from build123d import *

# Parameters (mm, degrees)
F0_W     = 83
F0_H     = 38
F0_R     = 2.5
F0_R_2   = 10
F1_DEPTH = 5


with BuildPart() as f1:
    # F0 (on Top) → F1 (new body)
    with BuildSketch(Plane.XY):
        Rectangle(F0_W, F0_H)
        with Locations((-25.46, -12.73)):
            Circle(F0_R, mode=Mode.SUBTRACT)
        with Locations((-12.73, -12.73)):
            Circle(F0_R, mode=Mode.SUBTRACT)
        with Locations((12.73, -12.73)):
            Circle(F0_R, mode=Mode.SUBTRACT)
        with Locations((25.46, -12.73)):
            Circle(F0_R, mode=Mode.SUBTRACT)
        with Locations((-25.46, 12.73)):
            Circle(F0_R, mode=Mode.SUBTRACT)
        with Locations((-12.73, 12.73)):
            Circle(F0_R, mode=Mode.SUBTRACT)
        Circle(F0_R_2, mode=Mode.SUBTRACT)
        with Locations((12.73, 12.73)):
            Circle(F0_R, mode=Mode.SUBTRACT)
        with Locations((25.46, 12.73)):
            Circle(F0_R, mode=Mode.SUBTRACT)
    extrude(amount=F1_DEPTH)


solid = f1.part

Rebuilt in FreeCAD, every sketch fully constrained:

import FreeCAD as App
import Part
import Sketcher
from FreeCAD import Vector
Q = App.Units.Quantity


def add_polygon(sketch, points):
    """Adds a closed chain of lines whose ends are joined by coincident constraints."""
    first, n = sketch.GeometryCount, len(points)
    for a, b in zip(points, points[1:] + points[:1]):
        sketch.addGeometry(Part.LineSegment(App.Vector(*a, 0), App.Vector(*b, 0)), False)
    for i in range(n):
        sketch.addConstraint(Sketcher.Constraint("Coincident", first + i, 2, first + (i + 1) % n, 1))

doc = App.newDocument("Part")
body = doc.addObject("PartDesign::Body", "Body")

sketch1 = doc.addObject("Sketcher::SketchObject", "Sketch")
body.addObject(sketch1)
sketch1.AttachmentSupport = (doc.XY_Plane, [""])
sketch1.MapMode = "FlatFace"
add_polygon(sketch1, [(-41.5, 19), (-41.5, -19), (41.5, -19), (41.5, 19)])
sketch1.addGeometry(Part.Circle(Vector(-25.5, -12.7, 0), Vector(0, 0, 1), 2.5), False)
sketch1.addGeometry(Part.Circle(Vector(-12.7, -12.7, 0), Vector(0, 0, 1), 2.5), False)
sketch1.addGeometry(Part.Circle(Vector(0, 0, 0), Vector(0, 0, 1), 10), False)
sketch1.addGeometry(Part.Circle(Vector(12.7, -12.7, 0), Vector(0, 0, 1), 2.5), False)
sketch1.addGeometry(Part.Circle(Vector(25.5, -12.7, 0), Vector(0, 0, 1), 2.5), False)
sketch1.addGeometry(Part.Circle(Vector(-25.5, 12.7, 0), Vector(0, 0, 1), 2.5), False)
sketch1.addGeometry(Part.Circle(Vector(-12.7, 12.7, 0), Vector(0, 0, 1), 2.5), False)
sketch1.addGeometry(Part.Circle(Vector(12.7, 12.7, 0), Vector(0, 0, 1), 2.5), False)
sketch1.addGeometry(Part.Circle(Vector(25.5, 12.7, 0), Vector(0, 0, 1), 2.5), False)
sketch1.addConstraint(Sketcher.Constraint("Vertical", 0))
sketch1.addConstraint(Sketcher.Constraint("Horizontal", 1))
sketch1.addConstraint(Sketcher.Constraint("Vertical", 2))
sketch1.addConstraint(Sketcher.Constraint("Horizontal", 3))
sketch1.addConstraint(Sketcher.Constraint("Coincident", 6, 3, -1, 1))
sketch1.addConstraint(Sketcher.Constraint("Equal", 4, 5))
sketch1.addConstraint(Sketcher.Constraint("Equal", 5, 7))
sketch1.addConstraint(Sketcher.Constraint("Equal", 7, 8))
sketch1.addConstraint(Sketcher.Constraint("Equal", 8, 9))
sketch1.addConstraint(Sketcher.Constraint("Equal", 9, 10))
sketch1.addConstraint(Sketcher.Constraint("Equal", 10, 11))
sketch1.addConstraint(Sketcher.Constraint("Equal", 11, 12))
sketch1.addConstraint(Sketcher.Constraint("Symmetric", 8, 3, 9, 3, -1, 1))
sketch1.addConstraint(Sketcher.Constraint("Symmetric", 7, 3, 10, 3, -1, 1))
sketch1.addConstraint(Sketcher.Constraint("Symmetric", 5, 3, 11, 3, -1, 1))
sketch1.addConstraint(Sketcher.Constraint("Symmetric", 4, 3, 12, 3, -1, 1))
sketch1.addConstraint(Sketcher.Constraint("Symmetric", 0, 2, 2, 2, -1, 1))
sketch1.addConstraint(Sketcher.Constraint("Symmetric", 5, 3, 7, 3, -2))
sketch1.addConstraint(Sketcher.Constraint("Symmetric", 4, 3, 8, 3, -2))
sketch1.addConstraint(Sketcher.Constraint("Horizontal", 4, 3, 5, 3))
sketch1.addConstraint(Sketcher.Constraint("Diameter", 4, Q("5 mm")))
sketch1.addConstraint(Sketcher.Constraint("Diameter", 6, Q("20 mm")))
sketch1.addConstraint(Sketcher.Constraint("DistanceX", 1, 1, 1, 2, Q("83 mm")))
sketch1.addConstraint(Sketcher.Constraint("DistanceY", 0, 2, 0, 1, Q("38 mm")))
sketch1.addConstraint(Sketcher.Constraint("DistanceX", 4, 3, -1, 1, Q("25.46 mm")))
sketch1.addConstraint(Sketcher.Constraint("DistanceY", 4, 3, -1, 1, Q("12.73 mm")))
sketch1.addConstraint(Sketcher.Constraint("DistanceX", 5, 3, -1, 1, Q("12.73 mm")))
pad1 = doc.addObject("PartDesign::Pad", "Pad")
body.addObject(pad1)
pad1.Profile = sketch1
pad1.Length = 5

doc.recompute()
